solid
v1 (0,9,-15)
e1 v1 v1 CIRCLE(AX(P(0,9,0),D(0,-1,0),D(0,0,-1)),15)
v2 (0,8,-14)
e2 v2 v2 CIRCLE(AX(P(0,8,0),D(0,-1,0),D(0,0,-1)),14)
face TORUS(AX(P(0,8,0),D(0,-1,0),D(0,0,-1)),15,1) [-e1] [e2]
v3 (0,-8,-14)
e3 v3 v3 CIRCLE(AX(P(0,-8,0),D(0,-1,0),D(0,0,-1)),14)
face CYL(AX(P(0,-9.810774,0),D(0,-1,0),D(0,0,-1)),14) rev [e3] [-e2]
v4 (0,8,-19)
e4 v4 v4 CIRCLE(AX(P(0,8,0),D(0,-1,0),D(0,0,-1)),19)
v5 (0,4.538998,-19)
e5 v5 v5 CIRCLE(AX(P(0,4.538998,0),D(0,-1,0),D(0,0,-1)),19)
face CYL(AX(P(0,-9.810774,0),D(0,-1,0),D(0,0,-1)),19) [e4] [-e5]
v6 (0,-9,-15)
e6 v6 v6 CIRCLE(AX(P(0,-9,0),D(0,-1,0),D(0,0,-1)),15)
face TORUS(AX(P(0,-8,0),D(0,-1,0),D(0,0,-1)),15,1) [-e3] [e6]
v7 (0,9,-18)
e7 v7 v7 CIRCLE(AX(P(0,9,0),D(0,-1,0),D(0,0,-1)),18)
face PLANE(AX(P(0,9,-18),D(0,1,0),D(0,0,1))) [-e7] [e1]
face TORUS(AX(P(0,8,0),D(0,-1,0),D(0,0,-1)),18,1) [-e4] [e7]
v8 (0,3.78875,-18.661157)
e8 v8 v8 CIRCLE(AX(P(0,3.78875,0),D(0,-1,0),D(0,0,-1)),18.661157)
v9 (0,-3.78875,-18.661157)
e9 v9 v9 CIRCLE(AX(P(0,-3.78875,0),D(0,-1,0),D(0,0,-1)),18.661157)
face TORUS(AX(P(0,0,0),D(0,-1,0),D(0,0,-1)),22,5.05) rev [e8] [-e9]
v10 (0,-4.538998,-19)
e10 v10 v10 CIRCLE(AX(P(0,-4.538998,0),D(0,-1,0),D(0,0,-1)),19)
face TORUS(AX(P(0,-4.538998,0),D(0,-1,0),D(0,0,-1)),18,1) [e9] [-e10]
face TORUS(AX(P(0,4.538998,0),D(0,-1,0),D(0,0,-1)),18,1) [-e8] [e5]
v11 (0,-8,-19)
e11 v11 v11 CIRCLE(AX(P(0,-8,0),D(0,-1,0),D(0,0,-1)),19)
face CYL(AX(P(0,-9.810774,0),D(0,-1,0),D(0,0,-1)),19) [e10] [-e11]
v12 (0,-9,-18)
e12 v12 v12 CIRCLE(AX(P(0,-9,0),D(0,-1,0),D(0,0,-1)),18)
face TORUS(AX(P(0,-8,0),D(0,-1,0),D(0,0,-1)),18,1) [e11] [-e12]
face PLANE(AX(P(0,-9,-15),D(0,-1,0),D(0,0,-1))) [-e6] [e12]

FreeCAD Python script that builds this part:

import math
import FreeCAD as App
import Part
import Sketcher
Q = App.Units.Quantity

doc = App.newDocument("Part")
params = doc.addObject("Spreadsheet::Sheet", "Params")
for row, (alias, value) in enumerate([
    ("sketch1_radius", "1 mm"),
    ("sketch1_width", "16 mm"),
    ("sketch1_height", "3 mm"),
    ("sketch1_radius2", "5.05 mm"),
    ("revolution_angle", "360 deg"),
], start=1):
    params.set(f"A{row}", alias)
    params.set(f"B{row}", "=" + value)
    params.setAlias(f"B{row}", alias)

body = doc.addObject("PartDesign::Body", "Body")

# Sketch on YZ plane
sketch1 = doc.addObject("Sketcher::SketchObject", "Sketch")
body.addObject(sketch1)
sketch1.AttachmentSupport = (doc.YZ_Plane, [""])
sketch1.MapMode = "FlatFace"
sketch1.addGeometry(Part.LineSegment(App.Vector(8, -14, 0), App.Vector(-8, -14, 0)), False)
sketch1.addGeometry(Part.ArcOfCircle(Part.Circle(App.Vector(-8, -15, 0), App.Vector(0, 0, 1), 1), math.radians(90), math.radians(180)), False)
sketch1.addGeometry(Part.LineSegment(App.Vector(-9, -15, 0), App.Vector(-9, -18, 0)), False)
sketch1.addGeometry(Part.ArcOfCircle(Part.Circle(App.Vector(-8, -18, 0), App.Vector(0, 0, 1), 1), math.radians(-180), math.radians(-90)), False)
sketch1.addGeometry(Part.LineSegment(App.Vector(-8, -19, 0), App.Vector(-4.5, -19, 0)), False)
sketch1.addGeometry(Part.ArcOfCircle(Part.Circle(App.Vector(-4.5, -18, 0), App.Vector(0, 0, 1), 1), math.radians(-90), math.radians(-41)), False)
sketch1.addGeometry(Part.ArcOfCircle(Part.Circle(App.Vector(0, -22, 0), App.Vector(0, 0, 1), 5), math.radians(41), math.radians(139)), False)
sketch1.addGeometry(Part.ArcOfCircle(Part.Circle(App.Vector(4.5, -18, 0), App.Vector(0, 0, 1), 1), math.radians(-139), math.radians(-90)), False)
sketch1.addGeometry(Part.LineSegment(App.Vector(4.5, -19, 0), App.Vector(8, -19, 0)), False)
sketch1.addGeometry(Part.ArcOfCircle(Part.Circle(App.Vector(8, -18, 0), App.Vector(0, 0, 1), 1), math.radians(-90), math.radians(0)), False)
sketch1.addGeometry(Part.LineSegment(App.Vector(9, -18, 0), App.Vector(9, -15, 0)), False)
sketch1.addGeometry(Part.ArcOfCircle(Part.Circle(App.Vector(8, -15, 0), App.Vector(0, 0, 1), 1), math.radians(0), math.radians(90)), False)
sketch1.addConstraint(Sketcher.Constraint("Tangent", 0, 2, 1, 1))
sketch1.addConstraint(Sketcher.Constraint("Tangent", 1, 2, 2, 1))
sketch1.addConstraint(Sketcher.Constraint("Tangent", 2, 2, 3, 1))
sketch1.addConstraint(Sketcher.Constraint("Tangent", 3, 2, 4, 1))
sketch1.addConstraint(Sketcher.Constraint("Tangent", 4, 2, 5, 1))
sketch1.addConstraint(Sketcher.Constraint("Tangent", 5, 2, 6, 2))
sketch1.addConstraint(Sketcher.Constraint("Tangent", 6, 1, 7, 1))
sketch1.addConstraint(Sketcher.Constraint("Tangent", 7, 2, 8, 1))
sketch1.addConstraint(Sketcher.Constraint("Tangent", 8, 2, 9, 1))
sketch1.addConstraint(Sketcher.Constraint("Tangent", 9, 2, 10, 1))
sketch1.addConstraint(Sketcher.Constraint("Tangent", 10, 2, 11, 1))
sketch1.addConstraint(Sketcher.Constraint("Tangent", 11, 2, 0, 1))
sketch1.addConstraint(Sketcher.Constraint("Horizontal", 0))
sketch1.addConstraint(Sketcher.Constraint("Vertical", 2))
sketch1.addConstraint(Sketcher.Constraint("Horizontal", 4))
sketch1.addConstraint(Sketcher.Constraint("Horizontal", 8))
sketch1.addConstraint(Sketcher.Constraint("Vertical", 10))
sketch1.addConstraint(Sketcher.Constraint("Equal", 1, 3))
sketch1.addConstraint(Sketcher.Constraint("Equal", 3, 5))
sketch1.addConstraint(Sketcher.Constraint("Equal", 5, 7))
sketch1.addConstraint(Sketcher.Constraint("Equal", 7, 9))
sketch1.addConstraint(Sketcher.Constraint("Equal", 9, 11))
sketch1.addConstraint(Sketcher.Constraint("Symmetric", 5, 3, 7, 3, -2))
sketch1.addConstraint(Sketcher.Constraint("Equal", 4, 8))
sketch1.addConstraint(Sketcher.Constraint("Radius", 1, Q("1 mm")))
sketch1.addConstraint(Sketcher.Constraint("DistanceX", 0, 2, 0, 1, Q("16 mm")))
sketch1.addConstraint(Sketcher.Constraint("DistanceY", 2, 2, 2, 1, Q("3 mm")))
sketch1.addConstraint(Sketcher.Constraint("Radius", 6, Q("5.05 mm")))
sketch1.addConstraint(Sketcher.Constraint("DistanceY", 1, 3, -1, 1, Q("15 mm")))
sketch1.addConstraint(Sketcher.Constraint("DistanceY", 6, 3, -1, 1, Q("22 mm")))
sketch1.setExpression("Constraints[24]", "Params.sketch1_radius")
sketch1.setExpression("Constraints[25]", "Params.sketch1_width")
sketch1.setExpression("Constraints[26]", "Params.sketch1_height")
sketch1.setExpression("Constraints[27]", "Params.sketch1_radius2")
revolution = doc.addObject("PartDesign::Revolution", "Revolution")
body.addObject(revolution)
revolution.Profile = sketch1
revolution.ReferenceAxis = (sketch1, ["H_Axis"])
revolution.setExpression("Angle", "Params.revolution_angle")

doc.recompute()
